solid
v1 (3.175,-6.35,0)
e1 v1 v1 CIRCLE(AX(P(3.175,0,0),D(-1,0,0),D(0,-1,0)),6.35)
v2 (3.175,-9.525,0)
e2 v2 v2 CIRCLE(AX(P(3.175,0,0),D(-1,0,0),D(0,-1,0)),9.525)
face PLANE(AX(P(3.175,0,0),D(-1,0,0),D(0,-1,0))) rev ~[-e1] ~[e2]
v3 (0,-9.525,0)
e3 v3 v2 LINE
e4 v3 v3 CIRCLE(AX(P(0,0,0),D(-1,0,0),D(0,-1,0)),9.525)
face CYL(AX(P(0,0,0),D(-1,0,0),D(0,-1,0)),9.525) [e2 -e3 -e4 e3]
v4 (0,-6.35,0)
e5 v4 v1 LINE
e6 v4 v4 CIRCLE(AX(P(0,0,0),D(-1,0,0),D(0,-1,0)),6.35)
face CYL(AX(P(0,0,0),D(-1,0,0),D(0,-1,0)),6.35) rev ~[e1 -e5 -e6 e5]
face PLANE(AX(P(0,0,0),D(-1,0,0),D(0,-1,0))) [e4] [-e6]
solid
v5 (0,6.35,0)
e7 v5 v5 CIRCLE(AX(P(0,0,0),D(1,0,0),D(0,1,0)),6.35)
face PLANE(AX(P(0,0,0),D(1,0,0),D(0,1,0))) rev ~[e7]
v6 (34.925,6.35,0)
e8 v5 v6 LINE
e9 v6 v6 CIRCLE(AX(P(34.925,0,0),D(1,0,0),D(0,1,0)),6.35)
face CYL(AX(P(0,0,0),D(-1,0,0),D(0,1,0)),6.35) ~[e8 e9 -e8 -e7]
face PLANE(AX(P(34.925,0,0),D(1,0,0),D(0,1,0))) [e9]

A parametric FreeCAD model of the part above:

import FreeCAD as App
import Part
import Sketcher
from FreeCAD import Vector
Q = App.Units.Quantity

doc = App.newDocument("Part")
body = doc.addObject("PartDesign::Body", "Body")

# Sketch on YZ plane
sketch1 = doc.addObject("Sketcher::SketchObject", "Sketch")
body.addObject(sketch1)
sketch1.AttachmentSupport = (doc.YZ_Plane, [""])
sketch1.MapMode = "FlatFace"
sketch1.addGeometry(Part.Circle(Vector(0, 0, 0), Vector(0, 0, 1), 6), False)
sketch1.addConstraint([
    Sketcher.Constraint("Coincident", 0, 3, -1, 1),
    Sketcher.Constraint("Diameter", 0, Q("0.5 in")),
])
pad1 = doc.addObject("PartDesign::Pad", "Pad")
body.addObject(pad1)
pad1.Profile = sketch1
pad1.Length = Q("1.375 in")
body2 = doc.addObject("PartDesign::Body", "Body001")

# Sketch on YZ plane
sketch2 = doc.addObject("Sketcher::SketchObject", "Sketch001")
body2.addObject(sketch2)
sketch2.AttachmentSupport = (doc.getObject("YZ_Plane001"), [""])
sketch2.MapMode = "FlatFace"
sketch2.addGeometry([
    Part.Circle(Vector(0, 0, 0), Vector(0, 0, 1), 10),
    Part.Circle(Vector(0, 0, 0), Vector(0, 0, 1), 6),
], False)
sketch2.addConstraint([
    Sketcher.Constraint("Coincident", 0, 3, -1, 1),
    Sketcher.Constraint("Coincident", 1, 3, -1, 1),
    Sketcher.Constraint("Diameter", 1, Q("0.5 in")),
    Sketcher.Constraint("Diameter", 0, Q("0.75 in")),
])
pad2 = doc.addObject("PartDesign::Pad", "Pad001")
body2.addObject(pad2)
pad2.Profile = sketch2
pad2.Length = Q("0.125 in")

doc.recompute()
